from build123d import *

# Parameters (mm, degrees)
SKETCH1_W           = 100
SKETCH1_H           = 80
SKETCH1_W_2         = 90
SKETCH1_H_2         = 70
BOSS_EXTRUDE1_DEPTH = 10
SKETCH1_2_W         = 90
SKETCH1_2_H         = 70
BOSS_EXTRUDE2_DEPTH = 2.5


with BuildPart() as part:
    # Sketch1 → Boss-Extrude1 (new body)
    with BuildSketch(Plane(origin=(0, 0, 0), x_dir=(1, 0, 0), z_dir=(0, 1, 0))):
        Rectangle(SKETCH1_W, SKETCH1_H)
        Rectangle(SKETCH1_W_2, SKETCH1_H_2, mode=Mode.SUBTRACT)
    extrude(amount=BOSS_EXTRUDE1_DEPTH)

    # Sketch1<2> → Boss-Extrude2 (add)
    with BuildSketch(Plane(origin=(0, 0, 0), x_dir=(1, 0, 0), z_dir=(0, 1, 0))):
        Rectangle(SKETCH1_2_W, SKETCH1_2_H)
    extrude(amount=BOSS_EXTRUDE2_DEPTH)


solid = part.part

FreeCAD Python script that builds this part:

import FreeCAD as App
import Part
import Sketcher
Q = App.Units.Quantity

doc = App.newDocument("Part")
body = doc.addObject("PartDesign::Body", "Body")

# Sketch on XZ plane
sketch1 = body.newObject("Sketcher::SketchObject", "Sketch")
sketch1.AttachmentSupport = (doc.getObject("XZ_Plane"), [""])
sketch1.MapMode = "FlatFace"
sketch1.addGeometry([
    Part.LineSegment(App.Vector(-50, -40, 0), App.Vector(-50, 40, 0)),  # 0
    Part.LineSegment(App.Vector(-50, 40, 0), App.Vector(50, 40, 0)),  # 1
    Part.LineSegment(App.Vector(50, 40, 0), App.Vector(50, -40, 0)),  # 2
    Part.LineSegment(App.Vector(50, -40, 0), App.Vector(-50, -40, 0)),  # 3
    Part.LineSegment(App.Vector(45, 35, 0), App.Vector(-45, 35, 0)),  # 4
    Part.LineSegment(App.Vector(-45, 35, 0), App.Vector(-45, -35, 0)),  # 5
    Part.LineSegment(App.Vector(-45, -35, 0), App.Vector(45, -35, 0)),  # 6
    Part.LineSegment(App.Vector(45, -35, 0), App.Vector(45, 35, 0)),  # 7
], False)
sketch1.addConstraint([
    Sketcher.Constraint("Coincident", 0, 2, 1, 1),
    Sketcher.Constraint("Coincident", 1, 2, 2, 1),
    Sketcher.Constraint("Coincident", 2, 2, 3, 1),
    Sketcher.Constraint("Coincident", 3, 2, 0, 1),
    Sketcher.Constraint("Coincident", 4, 2, 5, 1),
    Sketcher.Constraint("Coincident", 5, 2, 6, 1),
    Sketcher.Constraint("Coincident", 6, 2, 7, 1),
    Sketcher.Constraint("Coincident", 7, 2, 4, 1),
    Sketcher.Constraint("Vertical", 0),
    Sketcher.Constraint("Horizontal", 1),
    Sketcher.Constraint("Vertical", 2),
    Sketcher.Constraint("Horizontal", 3),
    Sketcher.Constraint("Horizontal", 4),
    Sketcher.Constraint("Vertical", 5),
    Sketcher.Constraint("Horizontal", 6),
    Sketcher.Constraint("Vertical", 7),
    Sketcher.Constraint("Symmetric", 0, 2, 2, 2, -1, 1),
    Sketcher.Constraint("Symmetric", 4, 2, 6, 2, -1, 1),
    Sketcher.Constraint("DistanceX", 1, 1, 1, 2, Q("100 mm")),
    Sketcher.Constraint("DistanceX", 4, 2, 4, 1, Q("90 mm")),
    Sketcher.Constraint("DistanceY", 0, 1, 0, 2, Q("80 mm")),
    Sketcher.Constraint("DistanceY", 5, 2, 5, 1, Q("70 mm")),
])
pad1 = body.newObject("PartDesign::Pad", "Pad")
pad1.Profile = sketch1
pad1.Length = 10
pad1.Reversed = True

# Sketch on XZ plane
sketch2 = body.newObject("Sketcher::SketchObject", "Sketch001")
sketch2.AttachmentSupport = (doc.getObject("XZ_Plane"), [""])
sketch2.MapMode = "FlatFace"
sketch2.addGeometry([
    Part.LineSegment(App.Vector(-45, -35, 0), App.Vector(-45, 35, 0)),
    Part.LineSegment(App.Vector(-45, 35, 0), App.Vector(45, 35, 0)),
    Part.LineSegment(App.Vector(45, 35, 0), App.Vector(45, -35, 0)),
    Part.LineSegment(App.Vector(45, -35, 0), App.Vector(-45, -35, 0)),
], False)
sketch2.addConstraint([
    Sketcher.Constraint("Coincident", 0, 2, 1, 1),
    Sketcher.Constraint("Coincident", 1, 2, 2, 1),
    Sketcher.Constraint("Coincident", 2, 2, 3, 1),
    Sketcher.Constraint("Coincident", 3, 2, 0, 1),
    Sketcher.Constraint("Vertical", 0),
    Sketcher.Constraint("Horizontal", 1),
    Sketcher.Constraint("Vertical", 2),
    Sketcher.Constraint("Horizontal", 3),
    Sketcher.Constraint("Symmetric", 0, 2, 2, 2, -1, 1),
    Sketcher.Constraint("DistanceX", 1, 1, 1, 2, Q("90 mm")),
    Sketcher.Constraint("DistanceY", 0, 1, 0, 2, Q("70 mm")),
])
pad2 = body.newObject("PartDesign::Pad", "Pad001")
pad2.Profile = sketch2
pad2.Length = 2.5
pad2.Reversed = True

doc.recompute()
